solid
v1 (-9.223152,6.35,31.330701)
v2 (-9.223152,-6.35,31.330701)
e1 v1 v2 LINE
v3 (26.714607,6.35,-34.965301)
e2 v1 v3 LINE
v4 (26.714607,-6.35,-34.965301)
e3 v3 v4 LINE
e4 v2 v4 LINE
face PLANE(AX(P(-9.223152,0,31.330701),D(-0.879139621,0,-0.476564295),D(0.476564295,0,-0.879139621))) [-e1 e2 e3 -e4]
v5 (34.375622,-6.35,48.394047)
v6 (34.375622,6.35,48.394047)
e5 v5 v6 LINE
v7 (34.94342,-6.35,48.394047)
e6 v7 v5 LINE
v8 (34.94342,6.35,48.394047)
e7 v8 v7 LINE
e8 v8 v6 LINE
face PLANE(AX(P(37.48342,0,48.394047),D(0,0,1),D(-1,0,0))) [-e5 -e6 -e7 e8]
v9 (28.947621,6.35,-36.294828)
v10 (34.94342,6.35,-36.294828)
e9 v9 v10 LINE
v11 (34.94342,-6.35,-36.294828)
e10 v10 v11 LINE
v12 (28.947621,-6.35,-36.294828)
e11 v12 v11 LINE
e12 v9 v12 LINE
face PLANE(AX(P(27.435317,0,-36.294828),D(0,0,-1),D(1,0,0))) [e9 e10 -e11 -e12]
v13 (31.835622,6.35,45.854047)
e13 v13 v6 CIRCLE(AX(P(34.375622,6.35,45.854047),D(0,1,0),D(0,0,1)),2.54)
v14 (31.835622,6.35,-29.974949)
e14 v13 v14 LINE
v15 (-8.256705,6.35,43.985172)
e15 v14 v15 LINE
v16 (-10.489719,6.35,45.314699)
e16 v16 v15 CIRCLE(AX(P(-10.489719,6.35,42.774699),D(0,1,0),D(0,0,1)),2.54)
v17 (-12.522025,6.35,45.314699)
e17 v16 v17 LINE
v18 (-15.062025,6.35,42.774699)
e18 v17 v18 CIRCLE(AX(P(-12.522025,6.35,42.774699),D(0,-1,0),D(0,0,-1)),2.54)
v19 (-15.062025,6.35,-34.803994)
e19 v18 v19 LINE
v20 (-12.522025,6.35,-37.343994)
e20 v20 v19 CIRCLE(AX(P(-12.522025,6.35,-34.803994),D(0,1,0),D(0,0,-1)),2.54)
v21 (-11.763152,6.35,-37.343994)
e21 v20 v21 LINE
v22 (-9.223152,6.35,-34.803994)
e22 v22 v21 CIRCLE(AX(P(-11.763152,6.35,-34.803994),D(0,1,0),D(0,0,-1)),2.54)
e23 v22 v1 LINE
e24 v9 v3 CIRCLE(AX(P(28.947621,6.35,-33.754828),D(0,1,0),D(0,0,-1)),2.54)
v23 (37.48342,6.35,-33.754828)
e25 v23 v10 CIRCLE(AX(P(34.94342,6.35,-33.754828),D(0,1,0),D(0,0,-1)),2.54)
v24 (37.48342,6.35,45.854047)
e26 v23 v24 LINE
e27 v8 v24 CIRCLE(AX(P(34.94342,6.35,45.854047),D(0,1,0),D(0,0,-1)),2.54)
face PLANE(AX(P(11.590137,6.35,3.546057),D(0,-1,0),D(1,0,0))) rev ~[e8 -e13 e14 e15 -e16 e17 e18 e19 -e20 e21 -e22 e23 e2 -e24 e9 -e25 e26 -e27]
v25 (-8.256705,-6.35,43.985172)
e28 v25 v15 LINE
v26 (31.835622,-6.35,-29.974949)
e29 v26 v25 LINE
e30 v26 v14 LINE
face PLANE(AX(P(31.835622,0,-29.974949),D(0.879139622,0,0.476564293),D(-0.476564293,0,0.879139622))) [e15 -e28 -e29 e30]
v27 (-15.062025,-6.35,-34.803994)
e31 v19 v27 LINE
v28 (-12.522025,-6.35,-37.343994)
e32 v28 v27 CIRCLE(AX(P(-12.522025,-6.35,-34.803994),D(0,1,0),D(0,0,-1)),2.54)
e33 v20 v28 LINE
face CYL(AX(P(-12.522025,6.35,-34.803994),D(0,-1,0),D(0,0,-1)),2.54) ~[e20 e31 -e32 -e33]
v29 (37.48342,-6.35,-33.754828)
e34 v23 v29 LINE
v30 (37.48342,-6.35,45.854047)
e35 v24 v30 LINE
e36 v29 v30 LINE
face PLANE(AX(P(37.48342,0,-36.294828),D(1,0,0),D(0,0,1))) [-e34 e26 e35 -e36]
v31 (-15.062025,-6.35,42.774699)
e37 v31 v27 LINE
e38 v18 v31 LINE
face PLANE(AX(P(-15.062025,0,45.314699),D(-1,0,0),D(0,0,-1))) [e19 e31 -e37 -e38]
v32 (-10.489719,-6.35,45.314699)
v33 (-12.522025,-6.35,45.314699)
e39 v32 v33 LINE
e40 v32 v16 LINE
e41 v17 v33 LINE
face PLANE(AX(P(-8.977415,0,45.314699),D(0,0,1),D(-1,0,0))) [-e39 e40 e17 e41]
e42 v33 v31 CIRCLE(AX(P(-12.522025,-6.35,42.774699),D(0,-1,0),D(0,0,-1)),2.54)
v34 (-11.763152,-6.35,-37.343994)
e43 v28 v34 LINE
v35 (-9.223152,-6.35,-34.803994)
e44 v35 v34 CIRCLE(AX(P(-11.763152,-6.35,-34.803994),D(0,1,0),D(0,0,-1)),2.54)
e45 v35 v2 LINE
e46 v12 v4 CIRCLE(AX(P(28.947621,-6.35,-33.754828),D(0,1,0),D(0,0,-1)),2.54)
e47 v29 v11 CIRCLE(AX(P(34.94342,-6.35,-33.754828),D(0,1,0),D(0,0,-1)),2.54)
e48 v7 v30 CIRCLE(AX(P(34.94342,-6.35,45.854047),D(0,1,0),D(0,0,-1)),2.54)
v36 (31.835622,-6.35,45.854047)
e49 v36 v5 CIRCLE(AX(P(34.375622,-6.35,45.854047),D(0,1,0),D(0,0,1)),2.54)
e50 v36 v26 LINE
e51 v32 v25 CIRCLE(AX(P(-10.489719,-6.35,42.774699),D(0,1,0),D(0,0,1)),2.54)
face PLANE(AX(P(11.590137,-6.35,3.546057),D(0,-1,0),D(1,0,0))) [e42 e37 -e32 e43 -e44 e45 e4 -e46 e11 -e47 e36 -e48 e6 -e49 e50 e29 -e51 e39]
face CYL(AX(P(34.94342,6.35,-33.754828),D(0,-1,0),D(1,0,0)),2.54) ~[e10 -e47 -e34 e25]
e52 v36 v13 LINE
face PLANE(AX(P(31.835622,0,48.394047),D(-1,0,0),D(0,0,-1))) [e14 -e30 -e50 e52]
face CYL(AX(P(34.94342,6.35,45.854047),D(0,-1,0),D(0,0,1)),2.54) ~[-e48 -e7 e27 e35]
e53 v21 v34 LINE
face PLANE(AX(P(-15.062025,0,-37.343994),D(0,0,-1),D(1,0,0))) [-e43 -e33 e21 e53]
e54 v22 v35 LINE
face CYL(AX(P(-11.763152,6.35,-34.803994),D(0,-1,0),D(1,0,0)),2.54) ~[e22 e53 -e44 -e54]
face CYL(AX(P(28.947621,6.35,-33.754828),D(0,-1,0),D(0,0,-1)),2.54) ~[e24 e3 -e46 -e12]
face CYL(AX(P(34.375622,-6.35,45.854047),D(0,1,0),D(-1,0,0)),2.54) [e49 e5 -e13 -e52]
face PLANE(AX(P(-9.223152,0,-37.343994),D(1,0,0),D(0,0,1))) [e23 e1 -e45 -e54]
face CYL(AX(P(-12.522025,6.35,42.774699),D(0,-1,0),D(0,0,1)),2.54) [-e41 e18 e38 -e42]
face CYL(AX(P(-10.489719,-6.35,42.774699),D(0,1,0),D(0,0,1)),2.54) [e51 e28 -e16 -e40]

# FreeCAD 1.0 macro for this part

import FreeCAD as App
import Part
import Sketcher


def edges_at(feature, points):
    """Names of the edges that pass closest to the given points."""
    edges = feature.Shape.Edges
    near = lambda p: min(range(len(edges)), key=lambda i: edges[i].distToShape(Part.Vertex(*p))[0])
    return sorted({f"Edge{near(p) + 1}" for p in points})


def add_polygon(sketch, points):
    """Adds a closed chain of lines whose ends are joined by coincident constraints."""
    first, n = sketch.GeometryCount, len(points)
    for a, b in zip(points, points[1:] + points[:1]):
        sketch.addGeometry(Part.LineSegment(App.Vector(*a, 0), App.Vector(*b, 0)), False)
    for i in range(n):
        sketch.addConstraint(Sketcher.Constraint("Coincident", first + i, 2, first + (i + 1) % n, 1))

doc = App.newDocument("Part")
params = doc.addObject("Spreadsheet::Sheet", "Params")
for row, (alias, value) in enumerate([
    ("pad1_length", "0.5 in"),
    ("fillet_radius", "0.1 in"),
], start=1):
    params.set(f"A{row}", alias)
    params.set(f"B{row}", "=" + value)
    params.setAlias(f"B{row}", alias)

body = doc.addObject("PartDesign::Body", "Body")

sketch1 = body.newObject("Sketcher::SketchObject", "Sketch")
sketch1.AttachmentSupport = (doc.getObject("XZ_Plane"), [""])
sketch1.MapMode = "FlatFace"
add_polygon(sketch1, [(-9, 45), (-15, 45), (-15, -37), (-9, -37), (-9, 31), (27, -36), (37, -36), (37, 48), (32, 48), (32, -30)])
sketch1.addConstraint(Sketcher.Constraint("Horizontal", 0))
sketch1.addConstraint(Sketcher.Constraint("Vertical", 1))
sketch1.addConstraint(Sketcher.Constraint("Horizontal", 2))
sketch1.addConstraint(Sketcher.Constraint("Vertical", 3))
sketch1.addConstraint(Sketcher.Constraint("Horizontal", 5))
sketch1.addConstraint(Sketcher.Constraint("Vertical", 6))
sketch1.addConstraint(Sketcher.Constraint("Horizontal", 7))
sketch1.addConstraint(Sketcher.Constraint("Vertical", 8))
sketch1.addConstraint(Sketcher.Constraint("Parallel", 4, 9))
sketch1.addConstraint(Sketcher.Constraint("DistanceX", 7, 2, 7, 1, 5.647798))
sketch1.addConstraint(Sketcher.Constraint("Distance", 4, 76.922399))
sketch1.addConstraint(Sketcher.Constraint("DistanceX", 0, 2, 0, 1, 6.08461))
sketch1.addConstraint(Sketcher.Constraint("DistanceY", -1, 1, 0, 2, 45.314699))
sketch1.addConstraint(Sketcher.Constraint("DistanceY", -1, 1, 3, 2, 31.330701))
sketch1.addConstraint(Sketcher.Constraint("Distance", 9, 85.640149))
sketch1.addConstraint(Sketcher.Constraint("DistanceX", 2, 1, 2, 2, 5.838873))
sketch1.addConstraint(Sketcher.Constraint("DistanceX", 5, 1, 5, 2, 10.048103))
sketch1.addConstraint(Sketcher.Constraint("DistanceY", 1, 2, 1, 1, 82.658693))
sketch1.addConstraint(Sketcher.Constraint("DistanceY", 6, 1, 6, 2, 84.688875))
sketch1.addConstraint(Sketcher.Constraint("DistanceX", -1, 1, 5, 2, 37.48342))
pad1 = body.newObject("PartDesign::Pad", "Pad")
pad1.Profile = sketch1
pad1.setExpression("Length", "Params.pad1_length")
pad1.Midplane = True
doc.recompute()

fillet = body.newObject("PartDesign::Fillet", "Fillet")
fillet.Base = (pad1, edges_at(pad1, [
    (-15.062, 0, -37.344),
    (37.483, 0, 48.394),
    (-15.062, 0, 45.315),
    (31.836, 0, 48.394),
    (-9.223, 0, -37.344),
    (37.483, 0, -36.295),
    (27.435, 0, -36.295),
    (-8.977, 0, 45.315),
]))
fillet.setExpression("Radius", "Params.fillet_radius")

doc.recompute()
